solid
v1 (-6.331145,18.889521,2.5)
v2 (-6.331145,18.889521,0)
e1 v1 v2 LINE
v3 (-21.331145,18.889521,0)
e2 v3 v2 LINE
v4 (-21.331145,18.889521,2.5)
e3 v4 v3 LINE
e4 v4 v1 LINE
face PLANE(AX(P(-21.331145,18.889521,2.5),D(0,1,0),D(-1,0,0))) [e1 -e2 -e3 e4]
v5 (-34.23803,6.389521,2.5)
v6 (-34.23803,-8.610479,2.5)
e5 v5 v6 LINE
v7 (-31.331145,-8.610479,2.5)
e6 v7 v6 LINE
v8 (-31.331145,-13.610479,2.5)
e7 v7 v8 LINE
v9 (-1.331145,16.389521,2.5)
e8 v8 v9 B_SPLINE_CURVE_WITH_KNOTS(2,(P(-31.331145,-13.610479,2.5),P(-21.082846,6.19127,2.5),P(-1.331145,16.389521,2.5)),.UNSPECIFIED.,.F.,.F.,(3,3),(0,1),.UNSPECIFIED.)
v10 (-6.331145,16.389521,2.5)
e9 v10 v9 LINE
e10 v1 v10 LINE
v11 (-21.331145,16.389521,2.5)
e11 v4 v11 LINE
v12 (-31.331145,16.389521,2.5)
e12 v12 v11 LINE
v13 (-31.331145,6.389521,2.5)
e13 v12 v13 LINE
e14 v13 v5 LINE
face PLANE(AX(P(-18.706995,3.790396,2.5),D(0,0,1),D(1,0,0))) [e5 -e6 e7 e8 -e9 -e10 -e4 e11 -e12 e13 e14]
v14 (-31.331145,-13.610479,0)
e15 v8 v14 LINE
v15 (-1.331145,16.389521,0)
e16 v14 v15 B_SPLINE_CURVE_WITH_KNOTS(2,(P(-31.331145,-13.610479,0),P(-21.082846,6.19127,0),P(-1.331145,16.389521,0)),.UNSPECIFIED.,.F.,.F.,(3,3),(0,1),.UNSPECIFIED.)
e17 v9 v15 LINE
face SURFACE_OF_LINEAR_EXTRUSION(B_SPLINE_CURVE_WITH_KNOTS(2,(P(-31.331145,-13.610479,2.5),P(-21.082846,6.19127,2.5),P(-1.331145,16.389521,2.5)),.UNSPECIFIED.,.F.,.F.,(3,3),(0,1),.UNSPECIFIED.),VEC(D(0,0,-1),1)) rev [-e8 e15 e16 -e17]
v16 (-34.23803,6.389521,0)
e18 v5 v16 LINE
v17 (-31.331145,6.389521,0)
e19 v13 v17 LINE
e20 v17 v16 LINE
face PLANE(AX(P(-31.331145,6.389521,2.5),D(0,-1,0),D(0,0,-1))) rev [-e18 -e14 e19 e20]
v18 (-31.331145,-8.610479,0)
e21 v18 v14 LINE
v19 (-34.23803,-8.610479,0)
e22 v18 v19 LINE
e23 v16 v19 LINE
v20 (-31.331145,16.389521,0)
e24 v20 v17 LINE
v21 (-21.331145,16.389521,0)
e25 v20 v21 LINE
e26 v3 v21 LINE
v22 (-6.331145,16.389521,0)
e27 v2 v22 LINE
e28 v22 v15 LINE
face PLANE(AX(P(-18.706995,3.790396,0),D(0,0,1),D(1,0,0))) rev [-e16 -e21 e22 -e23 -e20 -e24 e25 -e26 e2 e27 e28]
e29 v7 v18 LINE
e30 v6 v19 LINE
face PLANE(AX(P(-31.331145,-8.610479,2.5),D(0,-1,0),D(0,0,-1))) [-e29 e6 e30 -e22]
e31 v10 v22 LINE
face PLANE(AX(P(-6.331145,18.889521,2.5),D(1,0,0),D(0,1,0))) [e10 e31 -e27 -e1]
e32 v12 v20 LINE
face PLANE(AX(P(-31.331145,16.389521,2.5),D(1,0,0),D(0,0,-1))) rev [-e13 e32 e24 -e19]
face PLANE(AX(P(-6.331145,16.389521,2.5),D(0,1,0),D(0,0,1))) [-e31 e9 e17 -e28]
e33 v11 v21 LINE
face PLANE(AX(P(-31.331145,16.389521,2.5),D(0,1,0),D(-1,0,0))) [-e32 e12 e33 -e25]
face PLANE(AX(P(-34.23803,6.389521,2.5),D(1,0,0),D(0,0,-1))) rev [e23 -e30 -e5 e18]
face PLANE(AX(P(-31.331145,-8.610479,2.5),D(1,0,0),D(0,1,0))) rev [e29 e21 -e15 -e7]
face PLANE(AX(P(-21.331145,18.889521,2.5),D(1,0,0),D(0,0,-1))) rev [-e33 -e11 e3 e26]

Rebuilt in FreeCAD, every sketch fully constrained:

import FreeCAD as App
import Part
import Sketcher
from FreeCAD import Vector

doc = App.newDocument("Part")
body = doc.addObject("PartDesign::Body", "Body")

sketch1 = body.newObject("Sketcher::SketchObject", "Sketch")
sketch1.AttachmentSupport = (doc.getObject("XY_Plane"), [""])
sketch1.MapMode = "FlatFace"
sketch1.addGeometry(Part.LineSegment(Vector(-31.331145, -8.610479, 0), Vector(-31.331145, -13.610479, 0)), False)
sketch1.addGeometry(Part.BSplineCurve([Vector(-31.331145, -13.610479, 0), Vector(-21.082846, 6.19127, 0), Vector(-1.331145, 16.389521, 0)], [3, 3], [0, 1], False, 2, [1, 1, 1], False), False)
sketch1.addGeometry(Part.LineSegment(Vector(-1.331145, 16.389521, 0), Vector(-6.331145, 16.389521, 0)), False)
sketch1.addGeometry(Part.LineSegment(Vector(-6.331145, 16.389521, 0), Vector(-6.331145, 18.889521, 0)), False)
sketch1.addGeometry(Part.LineSegment(Vector(-6.331145, 18.889521, 0), Vector(-21.331145, 18.889521, 0)), False)
sketch1.addGeometry(Part.LineSegment(Vector(-21.331145, 18.889521, 0), Vector(-21.331145, 16.389521, 0)), False)
sketch1.addGeometry(Part.LineSegment(Vector(-21.331145, 16.389521, 0), Vector(-31.331145, 16.389521, 0)), False)
sketch1.addGeometry(Part.LineSegment(Vector(-31.331145, 16.389521, 0), Vector(-31.331145, 6.389521, 0)), False)
sketch1.addGeometry(Part.LineSegment(Vector(-31.331145, 6.389521, 0), Vector(-34.23803, 6.389521, 0)), False)
sketch1.addGeometry(Part.LineSegment(Vector(-34.23803, 6.389521, 0), Vector(-34.23803, -8.610479, 0)), False)
sketch1.addGeometry(Part.LineSegment(Vector(-34.23803, -8.610479, 0), Vector(-31.331145, -8.610479, 0)), False)
sketch1.addConstraint(Sketcher.Constraint("Block", 1))
sketch1.addConstraint(Sketcher.Constraint("Coincident", 0, 2, 1, 1))
sketch1.addConstraint(Sketcher.Constraint("Coincident", 1, 2, 2, 1))
sketch1.addConstraint(Sketcher.Constraint("Coincident", 2, 2, 3, 1))
sketch1.addConstraint(Sketcher.Constraint("Coincident", 3, 2, 4, 1))
sketch1.addConstraint(Sketcher.Constraint("Coincident", 4, 2, 5, 1))
sketch1.addConstraint(Sketcher.Constraint("Coincident", 5, 2, 6, 1))
sketch1.addConstraint(Sketcher.Constraint("Coincident", 6, 2, 7, 1))
sketch1.addConstraint(Sketcher.Constraint("Coincident", 7, 2, 8, 1))
sketch1.addConstraint(Sketcher.Constraint("Coincident", 8, 2, 9, 1))
sketch1.addConstraint(Sketcher.Constraint("Coincident", 9, 2, 10, 1))
sketch1.addConstraint(Sketcher.Constraint("Coincident", 10, 2, 0, 1))
sketch1.addConstraint(Sketcher.Constraint("Vertical", 0))
sketch1.addConstraint(Sketcher.Constraint("Horizontal", 2))
sketch1.addConstraint(Sketcher.Constraint("Vertical", 3))
sketch1.addConstraint(Sketcher.Constraint("Horizontal", 4))
sketch1.addConstraint(Sketcher.Constraint("Vertical", 5))
sketch1.addConstraint(Sketcher.Constraint("Horizontal", 6))
sketch1.addConstraint(Sketcher.Constraint("Vertical", 7))
sketch1.addConstraint(Sketcher.Constraint("Horizontal", 8))
sketch1.addConstraint(Sketcher.Constraint("Vertical", 9))
sketch1.addConstraint(Sketcher.Constraint("Horizontal", 10))
sketch1.addConstraint(Sketcher.Constraint("DistanceX", 2, 2, 2, 1, 5.0))
sketch1.addConstraint(Sketcher.Constraint("DistanceX", 4, 2, 4, 1, 15.0))
sketch1.addConstraint(Sketcher.Constraint("DistanceX", 6, 2, 6, 1, 10.0))
sketch1.addConstraint(Sketcher.Constraint("DistanceY", 0, 2, 0, 1, 5.0))
sketch1.addConstraint(Sketcher.Constraint("DistanceY", 7, 2, 7, 1, 10.0))
sketch1.addConstraint(Sketcher.Constraint("DistanceY", 9, 2, 9, 1, 15.0))
sketch1.addConstraint(Sketcher.Constraint("DistanceY", 3, 1, 3, 2, 2.5))
sketch1.addConstraint(Sketcher.Constraint("DistanceX", 8, 2, 8, 1, 2.906885))
pad1 = body.newObject("PartDesign::Pad", "Pad")
pad1.Profile = sketch1
pad1.Length = 2.5

doc.recompute()
